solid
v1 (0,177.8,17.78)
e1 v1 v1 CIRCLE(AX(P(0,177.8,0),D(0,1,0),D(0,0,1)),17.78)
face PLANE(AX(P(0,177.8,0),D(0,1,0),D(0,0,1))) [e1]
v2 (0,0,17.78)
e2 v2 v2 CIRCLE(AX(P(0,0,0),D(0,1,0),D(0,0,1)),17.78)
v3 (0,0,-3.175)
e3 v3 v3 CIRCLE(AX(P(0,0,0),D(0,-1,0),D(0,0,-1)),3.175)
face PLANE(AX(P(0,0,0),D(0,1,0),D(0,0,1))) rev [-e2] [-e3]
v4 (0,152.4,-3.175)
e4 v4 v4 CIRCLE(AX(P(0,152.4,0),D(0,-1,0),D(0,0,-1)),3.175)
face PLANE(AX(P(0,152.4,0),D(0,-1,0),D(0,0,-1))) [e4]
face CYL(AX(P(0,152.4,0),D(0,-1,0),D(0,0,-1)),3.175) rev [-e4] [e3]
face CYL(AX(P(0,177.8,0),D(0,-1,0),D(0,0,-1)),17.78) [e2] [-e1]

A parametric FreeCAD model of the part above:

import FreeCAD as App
import Part
import Sketcher

V = App.Vector
Q = App.Units.Quantity

doc = App.newDocument("Part")
params = doc.addObject("Spreadsheet::Sheet", "Params")
for row, (alias, value) in enumerate([
    ("sketch1_diameter", "1.4 in"),
    ("pad1_length", "7 in"),
    ("sketch2_diameter", "0.25 in"),
    ("pocket1_length", "6 in"),
], start=1):
    params.set(f"A{row}", alias)
    params.set(f"B{row}", "=" + value)
    params.setAlias(f"B{row}", alias)

body = doc.addObject("PartDesign::Body", "Body")

# Sketch on XZ plane
sketch1 = body.newObject("Sketcher::SketchObject", "Sketch")
sketch1.AttachmentSupport = (doc.getObject("XZ_Plane"), [""])
sketch1.MapMode = "FlatFace"
sketch1.addGeometry(Part.Circle(V(0, 0, 0), V(0, 0, 1), 18), False)
sketch1.addConstraint(Sketcher.Constraint("Coincident", 0, 3, -1, 1))
sketch1.addConstraint(Sketcher.Constraint("Diameter", 0, Q("1.4 in")))
sketch1.setExpression("Constraints[1]", "Params.sketch1_diameter")
pad1 = body.newObject("PartDesign::Pad", "Pad")
pad1.Profile = sketch1
pad1.setExpression("Length", "Params.pad1_length")
pad1.Reversed = True

# Sketch on XZ plane
sketch2 = body.newObject("Sketcher::SketchObject", "Sketch001")
sketch2.AttachmentSupport = (doc.getObject("XZ_Plane"), [""])
sketch2.MapMode = "FlatFace"
sketch2.addGeometry(Part.Circle(V(0, 0, 0), V(0, 0, 1), 3.2), False)
sketch2.addConstraint(Sketcher.Constraint("Coincident", 0, 3, -1, 1))
sketch2.addConstraint(Sketcher.Constraint("Diameter", 0, Q("0.25 in")))
sketch2.setExpression("Constraints[1]", "Params.sketch2_diameter")
pocket1 = body.newObject("PartDesign::Pocket", "Pocket")
pocket1.Profile = sketch2
pocket1.setExpression("Length", "Params.pocket1_length")

doc.recompute()
